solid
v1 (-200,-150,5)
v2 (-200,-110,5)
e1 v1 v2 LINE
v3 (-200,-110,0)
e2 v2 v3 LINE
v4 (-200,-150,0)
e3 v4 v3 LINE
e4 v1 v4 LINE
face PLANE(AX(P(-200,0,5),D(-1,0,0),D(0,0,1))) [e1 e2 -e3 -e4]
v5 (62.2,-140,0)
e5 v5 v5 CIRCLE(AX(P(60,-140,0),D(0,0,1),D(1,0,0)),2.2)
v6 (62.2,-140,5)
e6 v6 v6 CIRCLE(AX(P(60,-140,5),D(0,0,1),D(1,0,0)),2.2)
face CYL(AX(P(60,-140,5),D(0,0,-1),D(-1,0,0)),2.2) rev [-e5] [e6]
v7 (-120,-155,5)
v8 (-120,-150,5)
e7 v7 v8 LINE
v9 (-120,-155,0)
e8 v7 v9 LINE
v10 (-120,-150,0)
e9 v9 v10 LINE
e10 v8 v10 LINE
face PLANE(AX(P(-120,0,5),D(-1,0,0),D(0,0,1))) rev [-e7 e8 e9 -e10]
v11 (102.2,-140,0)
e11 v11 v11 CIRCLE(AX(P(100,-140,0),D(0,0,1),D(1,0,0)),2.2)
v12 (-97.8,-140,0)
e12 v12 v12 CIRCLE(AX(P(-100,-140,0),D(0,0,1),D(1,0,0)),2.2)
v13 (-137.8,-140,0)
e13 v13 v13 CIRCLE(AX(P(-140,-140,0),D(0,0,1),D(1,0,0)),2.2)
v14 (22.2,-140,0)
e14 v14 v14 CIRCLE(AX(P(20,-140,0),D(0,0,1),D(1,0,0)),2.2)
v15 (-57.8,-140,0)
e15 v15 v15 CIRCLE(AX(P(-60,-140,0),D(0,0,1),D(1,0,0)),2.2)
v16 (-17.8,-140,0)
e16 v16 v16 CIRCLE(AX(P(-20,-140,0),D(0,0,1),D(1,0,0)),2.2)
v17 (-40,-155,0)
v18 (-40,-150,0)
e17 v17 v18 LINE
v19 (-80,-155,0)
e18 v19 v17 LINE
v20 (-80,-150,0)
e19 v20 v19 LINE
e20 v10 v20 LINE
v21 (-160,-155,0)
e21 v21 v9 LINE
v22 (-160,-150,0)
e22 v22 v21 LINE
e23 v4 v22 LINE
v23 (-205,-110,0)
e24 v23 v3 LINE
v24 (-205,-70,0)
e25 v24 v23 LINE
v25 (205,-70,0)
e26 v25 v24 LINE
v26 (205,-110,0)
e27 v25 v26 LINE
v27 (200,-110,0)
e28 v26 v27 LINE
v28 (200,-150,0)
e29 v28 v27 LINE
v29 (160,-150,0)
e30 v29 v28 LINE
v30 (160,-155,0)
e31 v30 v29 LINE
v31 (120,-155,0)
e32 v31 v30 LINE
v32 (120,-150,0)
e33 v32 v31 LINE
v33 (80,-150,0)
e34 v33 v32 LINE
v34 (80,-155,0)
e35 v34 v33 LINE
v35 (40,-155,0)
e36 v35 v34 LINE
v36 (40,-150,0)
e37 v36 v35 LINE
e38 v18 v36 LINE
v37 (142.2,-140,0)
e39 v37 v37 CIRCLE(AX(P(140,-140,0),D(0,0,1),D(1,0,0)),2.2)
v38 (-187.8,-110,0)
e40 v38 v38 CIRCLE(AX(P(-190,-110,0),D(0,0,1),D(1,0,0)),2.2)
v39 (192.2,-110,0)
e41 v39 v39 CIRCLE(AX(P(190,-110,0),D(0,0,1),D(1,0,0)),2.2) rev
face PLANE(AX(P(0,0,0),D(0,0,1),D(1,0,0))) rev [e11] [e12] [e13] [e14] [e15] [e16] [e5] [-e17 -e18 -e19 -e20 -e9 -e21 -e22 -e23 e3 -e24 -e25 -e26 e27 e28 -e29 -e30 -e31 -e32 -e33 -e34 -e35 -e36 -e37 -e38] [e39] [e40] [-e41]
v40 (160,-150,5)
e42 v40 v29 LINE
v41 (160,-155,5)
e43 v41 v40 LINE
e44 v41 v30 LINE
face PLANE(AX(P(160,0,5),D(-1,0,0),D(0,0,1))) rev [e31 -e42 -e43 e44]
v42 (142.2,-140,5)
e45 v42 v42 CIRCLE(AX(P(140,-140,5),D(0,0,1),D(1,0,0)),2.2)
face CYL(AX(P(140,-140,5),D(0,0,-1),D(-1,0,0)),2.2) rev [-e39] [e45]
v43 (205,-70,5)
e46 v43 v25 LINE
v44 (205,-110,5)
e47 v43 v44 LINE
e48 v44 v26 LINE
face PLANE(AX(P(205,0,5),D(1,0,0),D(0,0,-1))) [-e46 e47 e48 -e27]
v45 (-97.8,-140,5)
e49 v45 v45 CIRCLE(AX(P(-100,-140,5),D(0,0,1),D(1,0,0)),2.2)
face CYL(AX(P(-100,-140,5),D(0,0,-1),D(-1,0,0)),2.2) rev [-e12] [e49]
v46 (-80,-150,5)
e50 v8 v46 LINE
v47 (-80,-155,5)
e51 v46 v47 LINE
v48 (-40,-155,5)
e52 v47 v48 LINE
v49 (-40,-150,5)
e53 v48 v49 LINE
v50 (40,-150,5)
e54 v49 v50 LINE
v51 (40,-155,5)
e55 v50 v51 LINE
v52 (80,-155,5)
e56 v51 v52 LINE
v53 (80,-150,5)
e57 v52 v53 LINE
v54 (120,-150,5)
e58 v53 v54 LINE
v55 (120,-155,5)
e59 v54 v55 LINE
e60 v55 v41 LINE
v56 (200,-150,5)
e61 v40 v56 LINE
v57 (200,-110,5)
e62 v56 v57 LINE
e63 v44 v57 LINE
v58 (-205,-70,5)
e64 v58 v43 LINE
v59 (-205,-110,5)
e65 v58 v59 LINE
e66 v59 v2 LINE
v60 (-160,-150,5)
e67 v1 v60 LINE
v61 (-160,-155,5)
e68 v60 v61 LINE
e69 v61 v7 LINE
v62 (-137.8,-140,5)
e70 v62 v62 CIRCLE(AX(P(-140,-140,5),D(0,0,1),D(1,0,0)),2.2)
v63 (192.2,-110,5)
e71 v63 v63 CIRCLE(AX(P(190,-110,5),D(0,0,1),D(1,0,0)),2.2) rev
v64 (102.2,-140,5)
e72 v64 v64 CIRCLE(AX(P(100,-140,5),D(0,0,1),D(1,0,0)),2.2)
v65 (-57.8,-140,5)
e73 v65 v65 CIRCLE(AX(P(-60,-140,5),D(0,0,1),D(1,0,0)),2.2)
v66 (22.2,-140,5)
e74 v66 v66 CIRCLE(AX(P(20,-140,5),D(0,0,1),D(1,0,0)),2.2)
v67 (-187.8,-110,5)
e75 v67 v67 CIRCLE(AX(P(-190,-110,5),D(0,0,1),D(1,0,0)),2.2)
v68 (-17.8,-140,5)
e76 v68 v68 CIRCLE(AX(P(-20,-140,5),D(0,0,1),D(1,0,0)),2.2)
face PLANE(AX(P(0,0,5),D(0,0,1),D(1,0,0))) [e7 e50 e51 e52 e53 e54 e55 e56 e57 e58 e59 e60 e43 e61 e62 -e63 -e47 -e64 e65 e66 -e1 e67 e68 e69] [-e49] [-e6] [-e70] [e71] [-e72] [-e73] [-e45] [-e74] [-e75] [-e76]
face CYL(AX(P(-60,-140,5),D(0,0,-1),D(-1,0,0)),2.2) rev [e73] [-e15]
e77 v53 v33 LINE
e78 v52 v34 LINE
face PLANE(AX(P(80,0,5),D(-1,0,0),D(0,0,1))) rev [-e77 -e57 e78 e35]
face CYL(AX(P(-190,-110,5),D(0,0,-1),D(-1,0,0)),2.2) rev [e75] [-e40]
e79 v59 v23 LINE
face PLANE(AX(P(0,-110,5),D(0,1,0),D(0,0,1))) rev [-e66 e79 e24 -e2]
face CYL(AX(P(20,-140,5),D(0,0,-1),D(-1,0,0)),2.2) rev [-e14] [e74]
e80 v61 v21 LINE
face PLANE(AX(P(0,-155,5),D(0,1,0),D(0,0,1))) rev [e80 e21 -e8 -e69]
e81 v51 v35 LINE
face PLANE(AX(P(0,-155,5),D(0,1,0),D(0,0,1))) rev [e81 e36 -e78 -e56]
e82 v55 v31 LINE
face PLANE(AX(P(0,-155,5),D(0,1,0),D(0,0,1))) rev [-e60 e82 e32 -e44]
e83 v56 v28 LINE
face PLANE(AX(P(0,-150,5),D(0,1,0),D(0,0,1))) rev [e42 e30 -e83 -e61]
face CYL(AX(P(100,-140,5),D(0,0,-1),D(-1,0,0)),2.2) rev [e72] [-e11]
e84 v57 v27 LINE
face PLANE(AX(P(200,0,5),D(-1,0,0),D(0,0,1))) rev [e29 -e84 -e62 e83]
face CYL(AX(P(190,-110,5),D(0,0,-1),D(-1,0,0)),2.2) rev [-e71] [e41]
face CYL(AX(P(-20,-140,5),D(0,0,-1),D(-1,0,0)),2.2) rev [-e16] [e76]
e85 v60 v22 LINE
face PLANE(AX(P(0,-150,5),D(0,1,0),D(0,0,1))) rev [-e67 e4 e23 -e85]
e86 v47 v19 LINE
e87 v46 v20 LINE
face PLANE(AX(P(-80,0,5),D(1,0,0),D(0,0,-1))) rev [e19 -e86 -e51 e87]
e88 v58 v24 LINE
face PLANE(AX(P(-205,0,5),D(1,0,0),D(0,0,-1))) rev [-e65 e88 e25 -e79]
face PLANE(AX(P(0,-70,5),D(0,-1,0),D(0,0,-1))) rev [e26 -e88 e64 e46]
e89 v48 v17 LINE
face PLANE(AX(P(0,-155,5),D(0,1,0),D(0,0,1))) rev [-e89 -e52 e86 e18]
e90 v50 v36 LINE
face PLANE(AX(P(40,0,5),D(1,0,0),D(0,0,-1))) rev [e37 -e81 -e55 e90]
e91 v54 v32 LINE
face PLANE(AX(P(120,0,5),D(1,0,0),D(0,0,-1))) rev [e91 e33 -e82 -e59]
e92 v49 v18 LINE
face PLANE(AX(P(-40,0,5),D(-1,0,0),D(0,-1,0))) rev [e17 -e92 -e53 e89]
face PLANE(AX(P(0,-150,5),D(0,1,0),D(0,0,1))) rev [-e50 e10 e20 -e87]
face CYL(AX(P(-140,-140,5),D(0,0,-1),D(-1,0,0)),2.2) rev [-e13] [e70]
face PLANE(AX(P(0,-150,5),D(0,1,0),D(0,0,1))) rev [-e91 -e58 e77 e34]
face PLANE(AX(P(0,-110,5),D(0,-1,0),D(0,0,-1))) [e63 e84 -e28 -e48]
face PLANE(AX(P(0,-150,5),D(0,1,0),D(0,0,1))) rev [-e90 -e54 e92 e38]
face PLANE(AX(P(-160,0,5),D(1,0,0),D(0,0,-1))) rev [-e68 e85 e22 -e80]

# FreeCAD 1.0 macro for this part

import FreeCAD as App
import Part
import Sketcher
Q = App.Units.Quantity


def add_polygon(sketch, points):
    """Adds a closed chain of lines whose ends are joined by coincident constraints."""
    first, n = sketch.GeometryCount, len(points)
    for a, b in zip(points, points[1:] + points[:1]):
        sketch.addGeometry(Part.LineSegment(App.Vector(*a, 0), App.Vector(*b, 0)), False)
    for i in range(n):
        sketch.addConstraint(Sketcher.Constraint("Coincident", first + i, 2, first + (i + 1) % n, 1))

doc = App.newDocument("Part")
params = doc.addObject("Spreadsheet::Sheet", "Params")
for row, (alias, value) in enumerate([
    ("sketch1_diameter", "4.4 mm"),
    ("sketch1_width", "400 mm"),
    ("sketch1_width2", "5 mm"),
    ("sketch1_width3", "40 mm"),
    ("sketch1_height", "60 mm"),
    ("pad1_length", "5 mm"),
    ("sketch2_width", "410 mm"),
    ("pocket1_length", "5 mm"),
    ("sketch3_width", "410 mm"),
    ("pad2_length", "5 mm"),
], start=1):
    params.set(f"A{row}", alias)
    params.set(f"B{row}", "=" + value)
    params.setAlias(f"B{row}", alias)

body = doc.addObject("PartDesign::Body", "Body")

# Sketch on XY plane
sketch1 = doc.addObject("Sketcher::SketchObject", "Sketch")
body.addObject(sketch1)
sketch1.AttachmentSupport = (doc.XY_Plane, [""])
sketch1.MapMode = "FlatFace"
add_polygon(sketch1, [(200, 150), (-200, 150), (-200, 110), (-205, 110), (-205, 70), (-200, 70), (-200, 30), (-205, 30), (-205, -30), (-200, -30), (-200, -70), (-205, -70), (-205, -110), (-200, -110), (-200, -150), (-160, -150), (-160, -155), (-120, -155), (-120, -150), (-80, -150), (-80, -155), (-40, -155), (-40, -150), (40, -150), (40, -155), (80, -155), (80, -150), (120, -150), (120, -155), (160, -155), (160, -150), (200, -150), (200, -110), (205, -110), (205, -70), (200, -70), (200, -30), (205, -30), (205, 30), (200, 30), (200, 70), (205, 70), (205, 110), (200, 110)])  # lines 0-43
sketch1.addGeometry(Part.Circle(App.Vector(140, -140, 0), App.Vector(0, 0, 1), 2.2), False)  # 44
sketch1.addGeometry(Part.Circle(App.Vector(100, -140, 0), App.Vector(0, 0, 1), 2.2), False)  # 45
sketch1.addGeometry(Part.Circle(App.Vector(190, -110, 0), App.Vector(0, 0, 1), 2.2), False)  # 46
sketch1.addGeometry(Part.Circle(App.Vector(60, -140, 0), App.Vector(0, 0, 1), 2.2), False)  # 47
sketch1.addGeometry(Part.Circle(App.Vector(20, -140, 0), App.Vector(0, 0, 1), 2.2), False)  # 48
sketch1.addGeometry(Part.Circle(App.Vector(190, -70, 0), App.Vector(0, 0, 1), 2.2), False)  # 49
sketch1.addGeometry(Part.Circle(App.Vector(190, -30, 0), App.Vector(0, 0, 1), 2.2), False)  # 50
sketch1.addGeometry(Part.Circle(App.Vector(-20, -140, 0), App.Vector(0, 0, 1), 2.2), False)  # 51
sketch1.addGeometry(Part.Circle(App.Vector(-60, -140, 0), App.Vector(0, 0, 1), 2.2), False)  # 52
sketch1.addGeometry(Part.Circle(App.Vector(-100, -140, 0), App.Vector(0, 0, 1), 2.2), False)  # 53
sketch1.addGeometry(Part.Circle(App.Vector(-140, -140, 0), App.Vector(0, 0, 1), 2.2), False)  # 54
sketch1.addGeometry(Part.Circle(App.Vector(-190, -110, 0), App.Vector(0, 0, 1), 2.2), False)  # 55
sketch1.addGeometry(Part.Circle(App.Vector(-190, -70, 0), App.Vector(0, 0, 1), 2.2), False)  # 56
sketch1.addGeometry(Part.Circle(App.Vector(-190, -30, 0), App.Vector(0, 0, 1), 2.2), False)  # 57
sketch1.addGeometry(Part.Circle(App.Vector(190, 30, 0), App.Vector(0, 0, 1), 2.2), False)  # 58
sketch1.addGeometry(Part.Circle(App.Vector(190, 70, 0), App.Vector(0, 0, 1), 2.2), False)  # 59
sketch1.addGeometry(Part.Circle(App.Vector(190, 110, 0), App.Vector(0, 0, 1), 2.2), False)  # 60
sketch1.addGeometry(Part.Circle(App.Vector(-190, 30, 0), App.Vector(0, 0, 1), 2.2), False)  # 61
sketch1.addGeometry(Part.Circle(App.Vector(-190, 70, 0), App.Vector(0, 0, 1), 2.2), False)  # 62
sketch1.addGeometry(Part.Circle(App.Vector(-190, 110, 0), App.Vector(0, 0, 1), 2.2), False)  # 63
sketch1.addConstraint(Sketcher.Constraint("Horizontal", 0))
sketch1.addConstraint(Sketcher.Constraint("Vertical", 1))
sketch1.addConstraint(Sketcher.Constraint("Horizontal", 2))
sketch1.addConstraint(Sketcher.Constraint("Vertical", 3))
sketch1.addConstraint(Sketcher.Constraint("Horizontal", 4))
sketch1.addConstraint(Sketcher.Constraint("Vertical", 5))
sketch1.addConstraint(Sketcher.Constraint("Horizontal", 6))
sketch1.addConstraint(Sketcher.Constraint("Vertical", 7))
sketch1.addConstraint(Sketcher.Constraint("Horizontal", 8))
sketch1.addConstraint(Sketcher.Constraint("Vertical", 9))
sketch1.addConstraint(Sketcher.Constraint("Horizontal", 10))
sketch1.addConstraint(Sketcher.Constraint("Vertical", 11))
sketch1.addConstraint(Sketcher.Constraint("Horizontal", 12))
sketch1.addConstraint(Sketcher.Constraint("Vertical", 13))
sketch1.addConstraint(Sketcher.Constraint("Horizontal", 14))
sketch1.addConstraint(Sketcher.Constraint("Vertical", 15))
sketch1.addConstraint(Sketcher.Constraint("Horizontal", 16))
sketch1.addConstraint(Sketcher.Constraint("Vertical", 17))
sketch1.addConstraint(Sketcher.Constraint("Horizontal", 18))
sketch1.addConstraint(Sketcher.Constraint("Vertical", 19))
sketch1.addConstraint(Sketcher.Constraint("Horizontal", 20))
sketch1.addConstraint(Sketcher.Constraint("Vertical", 21))
sketch1.addConstraint(Sketcher.Constraint("Horizontal", 22))
sketch1.addConstraint(Sketcher.Constraint("Vertical", 23))
sketch1.addConstraint(Sketcher.Constraint("Horizontal", 24))
sketch1.addConstraint(Sketcher.Constraint("Vertical", 25))
sketch1.addConstraint(Sketcher.Constraint("Horizontal", 26))
sketch1.addConstraint(Sketcher.Constraint("Vertical", 27))
sketch1.addConstraint(Sketcher.Constraint("Horizontal", 28))
sketch1.addConstraint(Sketcher.Constraint("Vertical", 29))
sketch1.addConstraint(Sketcher.Constraint("Horizontal", 30))
sketch1.addConstraint(Sketcher.Constraint("Vertical", 31))
sketch1.addConstraint(Sketcher.Constraint("Horizontal", 32))
sketch1.addConstraint(Sketcher.Constraint("Vertical", 33))
sketch1.addConstraint(Sketcher.Constraint("Horizontal", 34))
sketch1.addConstraint(Sketcher.Constraint("Vertical", 35))
sketch1.addConstraint(Sketcher.Constraint("Horizontal", 36))
sketch1.addConstraint(Sketcher.Constraint("Vertical", 37))
sketch1.addConstraint(Sketcher.Constraint("Horizontal", 38))
sketch1.addConstraint(Sketcher.Constraint("Vertical", 39))
sketch1.addConstraint(Sketcher.Constraint("Horizontal", 40))
sketch1.addConstraint(Sketcher.Constraint("Vertical", 41))
sketch1.addConstraint(Sketcher.Constraint("Horizontal", 42))
sketch1.addConstraint(Sketcher.Constraint("Vertical", 43))
sketch1.addConstraint(Sketcher.Constraint("Equal", 44, 45))
sketch1.addConstraint(Sketcher.Constraint("Equal", 45, 46))
sketch1.addConstraint(Sketcher.Constraint("Equal", 46, 47))
sketch1.addConstraint(Sketcher.Constraint("Equal", 47, 48))
sketch1.addConstraint(Sketcher.Constraint("Equal", 48, 49))
sketch1.addConstraint(Sketcher.Constraint("Equal", 49, 50))
sketch1.addConstraint(Sketcher.Constraint("Equal", 50, 51))
sketch1.addConstraint(Sketcher.Constraint("Equal", 51, 52))
sketch1.addConstraint(Sketcher.Constraint("Equal", 52, 53))
sketch1.addConstraint(Sketcher.Constraint("Equal", 53, 54))
sketch1.addConstraint(Sketcher.Constraint("Equal", 54, 55))
sketch1.addConstraint(Sketcher.Constraint("Equal", 55, 56))
sketch1.addConstraint(Sketcher.Constraint("Equal", 56, 57))
sketch1.addConstraint(Sketcher.Constraint("Equal", 57, 58))
sketch1.addConstraint(Sketcher.Constraint("Equal", 58, 59))
sketch1.addConstraint(Sketcher.Constraint("Equal", 59, 60))
sketch1.addConstraint(Sketcher.Constraint("Equal", 60, 61))
sketch1.addConstraint(Sketcher.Constraint("Equal", 61, 62))
sketch1.addConstraint(Sketcher.Constraint("Equal", 62, 63))
sketch1.addConstraint(Sketcher.Constraint("Symmetric", 57, 3, 58, 3, -1, 1))
sketch1.addConstraint(Sketcher.Constraint("Symmetric", 56, 3, 59, 3, -1, 1))
sketch1.addConstraint(Sketcher.Constraint("Symmetric", 55, 3, 60, 3, -1, 1))
sketch1.addConstraint(Sketcher.Constraint("Symmetric", 50, 3, 61, 3, -1, 1))
sketch1.addConstraint(Sketcher.Constraint("Symmetric", 49, 3, 62, 3, -1, 1))
sketch1.addConstraint(Sketcher.Constraint("Symmetric", 46, 3, 63, 3, -1, 1))
sketch1.addConstraint(Sketcher.Constraint("Symmetric", 0, 2, 30, 2, -1, 1))
sketch1.addConstraint(Sketcher.Constraint("Symmetric", 2, 2, 32, 2, -1, 1))
sketch1.addConstraint(Sketcher.Constraint("Symmetric", 4, 2, 34, 2, -1, 1))
sketch1.addConstraint(Sketcher.Constraint("Symmetric", 6, 2, 36, 2, -1, 1))
sketch1.addConstraint(Sketcher.Constraint("Symmetric", 8, 2, 38, 2, -1, 1))
sketch1.addConstraint(Sketcher.Constraint("Symmetric", 10, 2, 40, 2, -1, 1))
sketch1.addConstraint(Sketcher.Constraint("Symmetric", 12, 2, 42, 2, -1, 1))
sketch1.addConstraint(Sketcher.Constraint("Symmetric", 48, 3, 51, 3, -2))
sketch1.addConstraint(Sketcher.Constraint("Symmetric", 47, 3, 52, 3, -2))
sketch1.addConstraint(Sketcher.Constraint("Symmetric", 45, 3, 53, 3, -2))
sketch1.addConstraint(Sketcher.Constraint("Symmetric", 44, 3, 54, 3, -2))
sketch1.addConstraint(Sketcher.Constraint("Symmetric", 46, 3, 55, 3, -2))
sketch1.addConstraint(Sketcher.Constraint("Symmetric", 49, 3, 56, 3, -2))
sketch1.addConstraint(Sketcher.Constraint("Symmetric", 50, 3, 57, 3, -2))
sketch1.addConstraint(Sketcher.Constraint("Symmetric", 20, 2, 23, 2, -2))
sketch1.addConstraint(Sketcher.Constraint("Symmetric", 18, 2, 25, 2, -2))
sketch1.addConstraint(Sketcher.Constraint("Symmetric", 16, 2, 27, 2, -2))
sketch1.addConstraint(Sketcher.Constraint("Symmetric", 14, 2, 29, 2, -2))
sketch1.addConstraint(Sketcher.Constraint("Symmetric", 12, 2, 31, 2, -2))
sketch1.addConstraint(Sketcher.Constraint("Symmetric", 10, 2, 33, 2, -2))
sketch1.addConstraint(Sketcher.Constraint("Symmetric", 8, 2, 35, 2, -2))
sketch1.addConstraint(Sketcher.Constraint("Horizontal", 44, 3, 45, 3))
sketch1.addConstraint(Sketcher.Constraint("Horizontal", 45, 3, 47, 3))
sketch1.addConstraint(Sketcher.Constraint("Horizontal", 47, 3, 48, 3))
sketch1.addConstraint(Sketcher.Constraint("Horizontal", 63, 3, 1, 2))
sketch1.addConstraint(Sketcher.Constraint("Horizontal", 62, 3, 3, 2))
sketch1.addConstraint(Sketcher.Constraint("Horizontal", 61, 3, 5, 2))
sketch1.addConstraint(Sketcher.Constraint("Horizontal", 14, 2, 17, 2))
sketch1.addConstraint(Sketcher.Constraint("Horizontal", 16, 2, 19, 2))
sketch1.addConstraint(Sketcher.Constraint("Horizontal", 18, 2, 21, 2))
sketch1.addConstraint(Sketcher.Constraint("Vertical", 46, 3, 49, 3))
sketch1.addConstraint(Sketcher.Constraint("Vertical", 49, 3, 50, 3))
sketch1.addConstraint(Sketcher.Constraint("Vertical", 1, 2, 4, 2))
sketch1.addConstraint(Sketcher.Constraint("Vertical", 3, 2, 6, 2))
sketch1.addConstraint(Sketcher.Constraint("Equal", 14, 16))
sketch1.addConstraint(Sketcher.Constraint("Equal", 16, 18))
sketch1.addConstraint(Sketcher.Constraint("Equal", 18, 20))
sketch1.addConstraint(Sketcher.Constraint("Equal", 30, 1))
sketch1.addConstraint(Sketcher.Constraint("Equal", 1, 3))
sketch1.addConstraint(Sketcher.Constraint("Equal", 3, 5))
sketch1.addConstraint(Sketcher.Constraint("Equal", 42, 15))
sketch1.addConstraint(Sketcher.Constraint("Diameter", 44, Q("4.4 mm")))
sketch1.addConstraint(Sketcher.Constraint("DistanceX", 0, 2, 0, 1, Q("400 mm")))
sketch1.addConstraint(Sketcher.Constraint("DistanceX", 2, 2, 2, 1, Q("5 mm")))
sketch1.addConstraint(Sketcher.Constraint("DistanceX", 14, 1, 14, 2, Q("40 mm")))
sketch1.addConstraint(Sketcher.Constraint("DistanceY", 7, 2, 7, 1, Q("60 mm")))
sketch1.addConstraint(Sketcher.Constraint("DistanceX", -1, 1, 44, 3, Q("140 mm")))
sketch1.addConstraint(Sketcher.Constraint("DistanceY", 44, 3, -1, 1, Q("140 mm")))
sketch1.addConstraint(Sketcher.Constraint("DistanceX", -1, 1, 45, 3, Q("100 mm")))
sketch1.addConstraint(Sketcher.Constraint("DistanceX", -1, 1, 46, 3, Q("190 mm")))
sketch1.addConstraint(Sketcher.Constraint("DistanceX", -1, 1, 47, 3, Q("60 mm")))
sketch1.addConstraint(Sketcher.Constraint("DistanceX", -1, 1, 48, 3, Q("20 mm")))
sketch1.setExpression("Constraints[154]", "Params.sketch1_diameter")
sketch1.setExpression("Constraints[155]", "Params.sketch1_width")
sketch1.setExpression("Constraints[156]", "Params.sketch1_width2")
sketch1.setExpression("Constraints[157]", "Params.sketch1_width3")
sketch1.setExpression("Constraints[158]", "Params.sketch1_height")
pad1 = doc.addObject("PartDesign::Pad", "Pad")
body.addObject(pad1)
pad1.Profile = sketch1
pad1.setExpression("Length", "Params.pad1_length")

# Sketch on XY plane
sketch2 = doc.addObject("Sketcher::SketchObject", "Sketch001")
body.addObject(sketch2)
sketch2.AttachmentSupport = (doc.XY_Plane, [""])
sketch2.MapMode = "FlatFace"
sketch2.AttachmentOffset = App.Placement(App.Vector(0, 0, 5), App.Rotation())
add_polygon(sketch2, [(-205, 156), (-205, -70), (205, -70), (205, 156)])  # lines 0-3
sketch2.addConstraint(Sketcher.Constraint("Vertical", 0))
sketch2.addConstraint(Sketcher.Constraint("Horizontal", 1))
sketch2.addConstraint(Sketcher.Constraint("Vertical", 2))
sketch2.addConstraint(Sketcher.Constraint("Horizontal", 3))
sketch2.addConstraint(Sketcher.Constraint("DistanceX", 1, 1, 1, 2, Q("410 mm")))
sketch2.addConstraint(Sketcher.Constraint("DistanceX", 0, 2, -1, 1, Q("205 mm")))
sketch2.addConstraint(Sketcher.Constraint("DistanceY", 0, 2, -1, 1, Q("70 mm")))
sketch2.addConstraint(Sketcher.Constraint("DistanceY", 0, 2, 0, 1, Q("226.105379 mm")))
sketch2.setExpression("Constraints[8]", "Params.sketch2_width")
pocket1 = doc.addObject("PartDesign::Pocket", "Pocket")
body.addObject(pocket1)
pocket1.Profile = sketch2
pocket1.setExpression("Length", "Params.pocket1_length")

# Sketch on XY plane
sketch3 = doc.addObject("Sketcher::SketchObject", "Sketch002")
body.addObject(sketch3)
sketch3.AttachmentSupport = (doc.XY_Plane, [""])
sketch3.MapMode = "FlatFace"
sketch3.AttachmentOffset = App.Placement(App.Vector(0, 0, 5), App.Rotation())
add_polygon(sketch3, [(-205, -70), (-205, -89), (205, -89), (205, -70)])  # lines 0-3
sketch3.addConstraint(Sketcher.Constraint("Vertical", 0))
sketch3.addConstraint(Sketcher.Constraint("Horizontal", 1))
sketch3.addConstraint(Sketcher.Constraint("Vertical", 2))
sketch3.addConstraint(Sketcher.Constraint("Horizontal", 3))
sketch3.addConstraint(Sketcher.Constraint("DistanceX", 1, 1, 1, 2, Q("410 mm")))
sketch3.addConstraint(Sketcher.Constraint("DistanceX", 0, 2, -1, 1, Q("205 mm")))
sketch3.addConstraint(Sketcher.Constraint("DistanceY", 2, 2, -1, 1, Q("70 mm")))
sketch3.addConstraint(Sketcher.Constraint("DistanceY", 0, 2, 0, 1, Q("19.486671 mm")))
sketch3.setExpression("Constraints[8]", "Params.sketch3_width")
pad2 = doc.addObject("PartDesign::Pad", "Pad001")
body.addObject(pad2)
pad2.Profile = sketch3
pad2.setExpression("Length", "Params.pad2_length")
pad2.Reversed = True

doc.recompute()
